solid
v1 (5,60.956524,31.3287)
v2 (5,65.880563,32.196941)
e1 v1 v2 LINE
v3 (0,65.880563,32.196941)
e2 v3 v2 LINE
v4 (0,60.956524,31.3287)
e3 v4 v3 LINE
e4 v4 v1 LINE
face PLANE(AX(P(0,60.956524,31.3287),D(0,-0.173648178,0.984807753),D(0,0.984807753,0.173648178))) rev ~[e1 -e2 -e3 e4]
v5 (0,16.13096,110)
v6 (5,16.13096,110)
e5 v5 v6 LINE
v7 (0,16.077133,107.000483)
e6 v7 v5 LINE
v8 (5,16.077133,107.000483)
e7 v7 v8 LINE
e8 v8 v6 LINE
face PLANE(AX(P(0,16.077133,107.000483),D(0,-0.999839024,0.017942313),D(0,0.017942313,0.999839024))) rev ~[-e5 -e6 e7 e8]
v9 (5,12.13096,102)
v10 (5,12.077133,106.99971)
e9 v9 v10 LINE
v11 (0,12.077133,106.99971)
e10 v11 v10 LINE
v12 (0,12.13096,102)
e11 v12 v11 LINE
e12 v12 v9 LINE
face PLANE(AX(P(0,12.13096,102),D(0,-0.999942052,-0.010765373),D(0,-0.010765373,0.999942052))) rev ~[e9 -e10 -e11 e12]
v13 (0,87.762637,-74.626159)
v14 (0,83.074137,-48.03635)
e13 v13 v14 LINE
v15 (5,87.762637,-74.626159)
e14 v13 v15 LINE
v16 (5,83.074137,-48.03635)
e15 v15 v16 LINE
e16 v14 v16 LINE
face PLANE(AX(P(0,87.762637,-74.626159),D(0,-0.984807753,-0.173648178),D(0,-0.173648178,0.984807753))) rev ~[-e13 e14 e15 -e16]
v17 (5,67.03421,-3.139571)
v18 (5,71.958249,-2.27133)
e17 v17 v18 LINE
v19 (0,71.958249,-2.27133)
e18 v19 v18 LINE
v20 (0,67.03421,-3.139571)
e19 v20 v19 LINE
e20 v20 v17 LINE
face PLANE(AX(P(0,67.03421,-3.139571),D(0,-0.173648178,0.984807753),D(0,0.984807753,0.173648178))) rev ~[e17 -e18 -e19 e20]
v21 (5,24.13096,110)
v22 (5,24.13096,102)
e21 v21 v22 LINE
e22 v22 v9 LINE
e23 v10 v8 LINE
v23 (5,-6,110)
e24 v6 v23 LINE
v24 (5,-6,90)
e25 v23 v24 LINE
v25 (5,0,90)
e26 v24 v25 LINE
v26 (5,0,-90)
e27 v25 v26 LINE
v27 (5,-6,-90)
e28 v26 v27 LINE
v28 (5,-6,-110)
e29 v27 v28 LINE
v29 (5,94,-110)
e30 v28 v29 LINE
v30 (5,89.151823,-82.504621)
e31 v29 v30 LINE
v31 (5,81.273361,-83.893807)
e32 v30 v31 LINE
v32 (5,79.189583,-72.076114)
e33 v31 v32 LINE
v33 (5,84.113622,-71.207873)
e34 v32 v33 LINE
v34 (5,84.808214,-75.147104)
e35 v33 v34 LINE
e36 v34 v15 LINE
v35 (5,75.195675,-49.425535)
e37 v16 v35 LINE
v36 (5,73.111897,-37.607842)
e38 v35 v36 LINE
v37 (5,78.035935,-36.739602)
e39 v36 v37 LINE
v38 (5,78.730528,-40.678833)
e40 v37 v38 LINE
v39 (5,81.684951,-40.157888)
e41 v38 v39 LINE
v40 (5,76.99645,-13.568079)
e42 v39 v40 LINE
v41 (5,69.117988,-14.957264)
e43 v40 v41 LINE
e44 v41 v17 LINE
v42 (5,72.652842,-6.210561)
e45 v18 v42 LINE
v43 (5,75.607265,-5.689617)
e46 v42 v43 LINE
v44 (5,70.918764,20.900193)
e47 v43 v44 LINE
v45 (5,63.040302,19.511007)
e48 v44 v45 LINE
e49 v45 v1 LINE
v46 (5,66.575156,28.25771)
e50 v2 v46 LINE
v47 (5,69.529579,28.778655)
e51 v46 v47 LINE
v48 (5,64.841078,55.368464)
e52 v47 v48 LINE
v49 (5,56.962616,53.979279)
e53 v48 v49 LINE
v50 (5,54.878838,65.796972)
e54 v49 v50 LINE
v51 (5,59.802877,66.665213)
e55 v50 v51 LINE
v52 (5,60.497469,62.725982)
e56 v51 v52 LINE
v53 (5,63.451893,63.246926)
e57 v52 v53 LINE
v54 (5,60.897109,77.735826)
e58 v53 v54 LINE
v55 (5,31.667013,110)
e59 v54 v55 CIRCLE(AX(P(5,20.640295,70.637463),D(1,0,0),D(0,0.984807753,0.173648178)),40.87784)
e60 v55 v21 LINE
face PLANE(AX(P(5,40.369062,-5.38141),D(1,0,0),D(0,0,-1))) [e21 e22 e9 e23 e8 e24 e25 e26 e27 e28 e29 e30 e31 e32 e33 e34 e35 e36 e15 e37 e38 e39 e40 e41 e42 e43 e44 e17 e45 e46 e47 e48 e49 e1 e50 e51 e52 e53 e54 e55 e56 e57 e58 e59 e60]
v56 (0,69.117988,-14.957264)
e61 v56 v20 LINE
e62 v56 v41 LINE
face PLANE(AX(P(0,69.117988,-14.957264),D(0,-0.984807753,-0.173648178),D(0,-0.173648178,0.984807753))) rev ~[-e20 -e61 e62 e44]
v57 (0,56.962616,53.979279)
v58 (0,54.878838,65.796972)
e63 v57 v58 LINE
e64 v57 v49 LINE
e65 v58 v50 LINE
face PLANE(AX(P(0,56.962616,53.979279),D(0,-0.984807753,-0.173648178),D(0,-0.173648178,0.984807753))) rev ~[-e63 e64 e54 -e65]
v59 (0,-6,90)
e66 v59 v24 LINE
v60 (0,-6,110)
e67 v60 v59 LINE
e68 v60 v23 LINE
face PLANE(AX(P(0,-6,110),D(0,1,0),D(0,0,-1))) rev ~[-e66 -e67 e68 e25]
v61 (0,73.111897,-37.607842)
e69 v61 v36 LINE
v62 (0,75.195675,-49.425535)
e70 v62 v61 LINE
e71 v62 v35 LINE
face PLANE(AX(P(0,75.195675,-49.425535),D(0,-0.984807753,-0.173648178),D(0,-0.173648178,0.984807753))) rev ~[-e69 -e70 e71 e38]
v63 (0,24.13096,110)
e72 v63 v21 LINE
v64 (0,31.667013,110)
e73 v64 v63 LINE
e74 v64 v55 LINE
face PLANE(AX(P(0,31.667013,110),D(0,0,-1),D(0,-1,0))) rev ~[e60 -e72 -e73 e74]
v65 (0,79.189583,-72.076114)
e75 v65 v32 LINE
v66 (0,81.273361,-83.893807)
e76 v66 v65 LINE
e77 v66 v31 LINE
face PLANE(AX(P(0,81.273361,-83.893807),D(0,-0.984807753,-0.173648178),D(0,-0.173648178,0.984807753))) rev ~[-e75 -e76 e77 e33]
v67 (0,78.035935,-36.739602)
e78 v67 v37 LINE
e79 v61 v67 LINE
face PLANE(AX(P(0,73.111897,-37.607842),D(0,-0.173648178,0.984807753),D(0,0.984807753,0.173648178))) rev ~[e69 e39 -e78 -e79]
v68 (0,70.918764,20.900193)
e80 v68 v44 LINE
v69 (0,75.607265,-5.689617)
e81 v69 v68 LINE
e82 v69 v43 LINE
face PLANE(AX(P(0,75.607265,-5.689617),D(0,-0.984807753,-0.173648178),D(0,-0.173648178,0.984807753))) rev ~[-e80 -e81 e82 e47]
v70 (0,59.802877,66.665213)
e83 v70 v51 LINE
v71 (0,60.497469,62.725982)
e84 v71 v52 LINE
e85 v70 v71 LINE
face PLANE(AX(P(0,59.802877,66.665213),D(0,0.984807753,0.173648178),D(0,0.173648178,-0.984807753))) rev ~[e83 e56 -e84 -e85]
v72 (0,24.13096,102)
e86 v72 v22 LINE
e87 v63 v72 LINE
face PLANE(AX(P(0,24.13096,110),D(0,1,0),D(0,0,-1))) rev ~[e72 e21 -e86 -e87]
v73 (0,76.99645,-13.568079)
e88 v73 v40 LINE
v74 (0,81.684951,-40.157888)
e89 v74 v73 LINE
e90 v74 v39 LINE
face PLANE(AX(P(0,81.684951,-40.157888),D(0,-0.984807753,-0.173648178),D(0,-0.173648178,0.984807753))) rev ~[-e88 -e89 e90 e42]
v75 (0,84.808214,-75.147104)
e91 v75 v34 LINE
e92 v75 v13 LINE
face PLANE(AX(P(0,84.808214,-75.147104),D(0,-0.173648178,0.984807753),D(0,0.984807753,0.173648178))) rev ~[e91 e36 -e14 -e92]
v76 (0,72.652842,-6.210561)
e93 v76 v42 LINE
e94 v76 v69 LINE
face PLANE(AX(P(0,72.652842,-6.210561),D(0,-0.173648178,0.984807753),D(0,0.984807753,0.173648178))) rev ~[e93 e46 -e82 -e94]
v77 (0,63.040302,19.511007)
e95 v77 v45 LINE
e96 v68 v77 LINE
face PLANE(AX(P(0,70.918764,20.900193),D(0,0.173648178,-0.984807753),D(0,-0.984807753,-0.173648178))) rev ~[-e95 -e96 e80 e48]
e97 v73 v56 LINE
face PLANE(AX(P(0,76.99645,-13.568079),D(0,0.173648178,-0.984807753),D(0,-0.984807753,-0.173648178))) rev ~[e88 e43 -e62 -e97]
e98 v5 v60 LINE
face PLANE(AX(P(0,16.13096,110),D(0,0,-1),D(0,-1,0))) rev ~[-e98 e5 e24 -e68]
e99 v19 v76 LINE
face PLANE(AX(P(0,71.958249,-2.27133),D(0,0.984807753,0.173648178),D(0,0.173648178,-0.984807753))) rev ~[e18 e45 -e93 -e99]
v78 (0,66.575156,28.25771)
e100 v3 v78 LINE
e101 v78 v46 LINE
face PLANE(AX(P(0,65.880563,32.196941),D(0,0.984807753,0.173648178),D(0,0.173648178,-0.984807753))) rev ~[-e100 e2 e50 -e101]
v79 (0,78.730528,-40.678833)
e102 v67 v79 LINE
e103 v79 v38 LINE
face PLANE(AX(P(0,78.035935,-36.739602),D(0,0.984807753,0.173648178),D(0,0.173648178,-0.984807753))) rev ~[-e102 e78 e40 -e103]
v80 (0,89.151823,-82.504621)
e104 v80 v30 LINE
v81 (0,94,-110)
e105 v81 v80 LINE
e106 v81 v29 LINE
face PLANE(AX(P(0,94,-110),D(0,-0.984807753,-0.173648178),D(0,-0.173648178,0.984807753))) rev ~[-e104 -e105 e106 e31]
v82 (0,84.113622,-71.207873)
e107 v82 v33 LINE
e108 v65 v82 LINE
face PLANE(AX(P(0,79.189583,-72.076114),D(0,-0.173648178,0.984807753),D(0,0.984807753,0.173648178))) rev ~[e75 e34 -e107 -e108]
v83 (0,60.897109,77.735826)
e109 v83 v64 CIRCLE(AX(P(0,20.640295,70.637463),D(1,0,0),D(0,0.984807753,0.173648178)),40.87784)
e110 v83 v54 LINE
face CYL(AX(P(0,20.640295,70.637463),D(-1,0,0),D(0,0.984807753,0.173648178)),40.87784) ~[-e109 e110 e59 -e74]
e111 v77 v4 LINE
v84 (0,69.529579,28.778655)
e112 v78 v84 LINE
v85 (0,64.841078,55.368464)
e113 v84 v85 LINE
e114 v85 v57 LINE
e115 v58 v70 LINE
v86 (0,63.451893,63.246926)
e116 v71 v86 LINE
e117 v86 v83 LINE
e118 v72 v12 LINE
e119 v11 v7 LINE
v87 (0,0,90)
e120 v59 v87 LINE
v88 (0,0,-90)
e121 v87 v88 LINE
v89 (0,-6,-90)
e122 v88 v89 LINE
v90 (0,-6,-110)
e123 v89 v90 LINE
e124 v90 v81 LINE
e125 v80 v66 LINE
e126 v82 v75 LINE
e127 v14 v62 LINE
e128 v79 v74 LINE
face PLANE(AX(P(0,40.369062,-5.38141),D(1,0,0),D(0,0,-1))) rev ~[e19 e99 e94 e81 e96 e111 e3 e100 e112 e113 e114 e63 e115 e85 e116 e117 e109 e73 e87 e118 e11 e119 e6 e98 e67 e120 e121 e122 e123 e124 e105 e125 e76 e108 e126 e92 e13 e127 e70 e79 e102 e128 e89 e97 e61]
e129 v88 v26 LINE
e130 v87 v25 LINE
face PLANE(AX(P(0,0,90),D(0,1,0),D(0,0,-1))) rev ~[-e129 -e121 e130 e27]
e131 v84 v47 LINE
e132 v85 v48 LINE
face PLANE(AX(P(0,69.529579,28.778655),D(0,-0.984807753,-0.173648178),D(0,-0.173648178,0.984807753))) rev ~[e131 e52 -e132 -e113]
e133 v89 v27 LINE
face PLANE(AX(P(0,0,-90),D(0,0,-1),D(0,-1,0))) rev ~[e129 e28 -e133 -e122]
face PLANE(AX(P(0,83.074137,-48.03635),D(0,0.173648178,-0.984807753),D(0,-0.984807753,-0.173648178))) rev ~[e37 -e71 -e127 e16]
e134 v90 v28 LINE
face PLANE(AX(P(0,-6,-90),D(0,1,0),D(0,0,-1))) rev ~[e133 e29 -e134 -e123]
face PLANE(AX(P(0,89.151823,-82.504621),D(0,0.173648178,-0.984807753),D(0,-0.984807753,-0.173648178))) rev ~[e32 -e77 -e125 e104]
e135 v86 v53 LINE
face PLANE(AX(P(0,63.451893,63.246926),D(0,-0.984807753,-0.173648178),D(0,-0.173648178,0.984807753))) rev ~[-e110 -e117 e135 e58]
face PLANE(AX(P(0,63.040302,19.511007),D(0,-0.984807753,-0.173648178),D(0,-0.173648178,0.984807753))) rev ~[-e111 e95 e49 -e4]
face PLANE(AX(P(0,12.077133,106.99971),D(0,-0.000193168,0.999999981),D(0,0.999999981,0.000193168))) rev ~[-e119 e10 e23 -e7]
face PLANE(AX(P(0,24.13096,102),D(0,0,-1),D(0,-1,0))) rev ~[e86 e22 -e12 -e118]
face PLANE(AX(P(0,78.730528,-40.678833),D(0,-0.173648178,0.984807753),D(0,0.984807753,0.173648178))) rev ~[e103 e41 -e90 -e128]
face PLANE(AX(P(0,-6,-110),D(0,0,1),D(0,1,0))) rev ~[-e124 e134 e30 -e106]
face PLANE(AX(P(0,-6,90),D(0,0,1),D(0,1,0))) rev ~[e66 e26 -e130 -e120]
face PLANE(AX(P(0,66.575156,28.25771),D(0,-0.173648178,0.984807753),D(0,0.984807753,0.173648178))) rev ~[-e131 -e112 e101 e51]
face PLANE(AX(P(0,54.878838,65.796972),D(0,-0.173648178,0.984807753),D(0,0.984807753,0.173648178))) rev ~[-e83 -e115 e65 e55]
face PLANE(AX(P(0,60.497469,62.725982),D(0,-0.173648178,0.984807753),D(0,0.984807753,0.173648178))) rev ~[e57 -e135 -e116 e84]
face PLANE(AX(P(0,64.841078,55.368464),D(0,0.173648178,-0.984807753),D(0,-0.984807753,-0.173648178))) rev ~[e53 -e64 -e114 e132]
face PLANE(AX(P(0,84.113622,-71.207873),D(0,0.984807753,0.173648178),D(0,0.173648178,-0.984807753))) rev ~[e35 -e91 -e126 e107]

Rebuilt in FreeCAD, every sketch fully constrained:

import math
import FreeCAD as App
import Part
import Sketcher

V = App.Vector
Q = App.Units.Quantity

doc = App.newDocument("Part")
body = doc.addObject("PartDesign::Body", "Body")

# Sketch on YZ plane
sketch1 = body.newObject("Sketcher::SketchObject", "Sketch")
sketch1.AttachmentSupport = (doc.getObject("YZ_Plane"), [""])
sketch1.MapMode = "FlatFace"
sketch1.addGeometry(Part.LineSegment(V(-6, 110, 0), V(-6, 90, 0)), False)
sketch1.addGeometry(Part.LineSegment(V(-6, 90, 0), V(0, 90, 0)), False)
sketch1.addGeometry(Part.LineSegment(V(0, 90, 0), V(0, -90, 0)), False)
sketch1.addGeometry(Part.LineSegment(V(0, -90, 0), V(-6, -90, 0)), False)
sketch1.addGeometry(Part.LineSegment(V(-6, -90, 0), V(-6, -110, 0)), False)
sketch1.addGeometry(Part.LineSegment(V(-6, -110, 0), V(94, -110, 0)), False)
sketch1.addGeometry(Part.LineSegment(V(94, -110, 0), V(89.151823, -82.504621, 0)), False)
sketch1.addGeometry(Part.LineSegment(V(89.151823, -82.504621, 0), V(81.273361, -83.893807, 0)), False)
sketch1.addGeometry(Part.LineSegment(V(81.273361, -83.893807, 0), V(79.189583, -72.076114, 0)), False)
sketch1.addGeometry(Part.LineSegment(V(79.189583, -72.076114, 0), V(84.113622, -71.207873, 0)), False)
sketch1.addGeometry(Part.LineSegment(V(84.113622, -71.207873, 0), V(84.808214, -75.147104, 0)), False)
sketch1.addGeometry(Part.LineSegment(V(84.808214, -75.147104, 0), V(87.762637, -74.626159, 0)), False)
sketch1.addGeometry(Part.LineSegment(V(87.762637, -74.626159, 0), V(83.074137, -48.03635, 0)), False)
sketch1.addGeometry(Part.LineSegment(V(83.074137, -48.03635, 0), V(75.195675, -49.425535, 0)), False)
sketch1.addGeometry(Part.LineSegment(V(75.195675, -49.425535, 0), V(73.111897, -37.607842, 0)), False)
sketch1.addGeometry(Part.LineSegment(V(73.111897, -37.607842, 0), V(78.035935, -36.739602, 0)), False)
sketch1.addGeometry(Part.LineSegment(V(78.035935, -36.739602, 0), V(78.730528, -40.678833, 0)), False)
sketch1.addGeometry(Part.LineSegment(V(78.730528, -40.678833, 0), V(81.684951, -40.157888, 0)), False)
sketch1.addGeometry(Part.LineSegment(V(81.684951, -40.157888, 0), V(76.99645, -13.568079, 0)), False)
sketch1.addGeometry(Part.LineSegment(V(76.99645, -13.568079, 0), V(69.117988, -14.957264, 0)), False)
sketch1.addGeometry(Part.LineSegment(V(69.117988, -14.957264, 0), V(67.03421, -3.139571, 0)), False)
sketch1.addGeometry(Part.LineSegment(V(67.03421, -3.139571, 0), V(71.958249, -2.27133, 0)), False)
sketch1.addGeometry(Part.LineSegment(V(71.958249, -2.27133, 0), V(72.652842, -6.210561, 0)), False)
sketch1.addGeometry(Part.LineSegment(V(72.652842, -6.210561, 0), V(75.607265, -5.689617, 0)), False)
sketch1.addGeometry(Part.LineSegment(V(75.607265, -5.689617, 0), V(70.918764, 20.900193, 0)), False)
sketch1.addGeometry(Part.LineSegment(V(70.918764, 20.900193, 0), V(63.040302, 19.511007, 0)), False)
sketch1.addGeometry(Part.LineSegment(V(63.040302, 19.511007, 0), V(60.956524, 31.3287, 0)), False)
sketch1.addGeometry(Part.LineSegment(V(60.956524, 31.3287, 0), V(65.880563, 32.196941, 0)), False)
sketch1.addGeometry(Part.LineSegment(V(65.880563, 32.196941, 0), V(66.575156, 28.25771, 0)), False)
sketch1.addGeometry(Part.LineSegment(V(66.575156, 28.25771, 0), V(69.529579, 28.778655, 0)), False)
sketch1.addGeometry(Part.LineSegment(V(69.529579, 28.778655, 0), V(64.841078, 55.368464, 0)), False)
sketch1.addGeometry(Part.LineSegment(V(64.841078, 55.368464, 0), V(56.962616, 53.979279, 0)), False)
sketch1.addGeometry(Part.LineSegment(V(56.962616, 53.979279, 0), V(54.878838, 65.796972, 0)), False)
sketch1.addGeometry(Part.LineSegment(V(54.878838, 65.796972, 0), V(59.802877, 66.665213, 0)), False)
sketch1.addGeometry(Part.LineSegment(V(59.802877, 66.665213, 0), V(60.497469, 62.725982, 0)), False)
sketch1.addGeometry(Part.LineSegment(V(60.497469, 62.725982, 0), V(63.451893, 63.246926, 0)), False)
sketch1.addGeometry(Part.LineSegment(V(63.451893, 63.246926, 0), V(60.897109, 77.735826, 0)), False)
sketch1.addGeometry(Part.ArcOfCircle(Part.Circle(V(20.640295, 70.637463, 0), V(0, 0, 1), 40.87784), math.radians(10), math.radians(74.350724)), False)
sketch1.addGeometry(Part.LineSegment(V(31.667013, 110, 0), V(24.13096, 110, 0)), False)
sketch1.addGeometry(Part.LineSegment(V(24.13096, 110, 0), V(24.13096, 102, 0)), False)
sketch1.addGeometry(Part.LineSegment(V(24.13096, 102, 0), V(12.13096, 102, 0)), False)
sketch1.addGeometry(Part.LineSegment(V(12.13096, 102, 0), V(12.077133, 106.99971, 0)), False)
sketch1.addGeometry(Part.LineSegment(V(12.077133, 106.99971, 0), V(16.077133, 107.000483, 0)), False)
sketch1.addGeometry(Part.LineSegment(V(16.077133, 107.000483, 0), V(16.13096, 110, 0)), False)
sketch1.addGeometry(Part.LineSegment(V(16.13096, 110, 0), V(-6, 110, 0)), False)
sketch1.addConstraint(Sketcher.Constraint("Coincident", 0, 2, 1, 1))
sketch1.addConstraint(Sketcher.Constraint("Coincident", 1, 2, 2, 1))
sketch1.addConstraint(Sketcher.Constraint("Coincident", 2, 2, 3, 1))
sketch1.addConstraint(Sketcher.Constraint("Coincident", 3, 2, 4, 1))
sketch1.addConstraint(Sketcher.Constraint("Coincident", 4, 2, 5, 1))
sketch1.addConstraint(Sketcher.Constraint("Coincident", 5, 2, 6, 1))
sketch1.addConstraint(Sketcher.Constraint("Coincident", 6, 2, 7, 1))
sketch1.addConstraint(Sketcher.Constraint("Coincident", 7, 2, 8, 1))
sketch1.addConstraint(Sketcher.Constraint("Coincident", 8, 2, 9, 1))
sketch1.addConstraint(Sketcher.Constraint("Coincident", 9, 2, 10, 1))
sketch1.addConstraint(Sketcher.Constraint("Coincident", 10, 2, 11, 1))
sketch1.addConstraint(Sketcher.Constraint("Coincident", 11, 2, 12, 1))
sketch1.addConstraint(Sketcher.Constraint("Coincident", 12, 2, 13, 1))
sketch1.addConstraint(Sketcher.Constraint("Coincident", 13, 2, 14, 1))
sketch1.addConstraint(Sketcher.Constraint("Coincident", 14, 2, 15, 1))
sketch1.addConstraint(Sketcher.Constraint("Coincident", 15, 2, 16, 1))
sketch1.addConstraint(Sketcher.Constraint("Coincident", 16, 2, 17, 1))
sketch1.addConstraint(Sketcher.Constraint("Coincident", 17, 2, 18, 1))
sketch1.addConstraint(Sketcher.Constraint("Coincident", 18, 2, 19, 1))
sketch1.addConstraint(Sketcher.Constraint("Coincident", 19, 2, 20, 1))
sketch1.addConstraint(Sketcher.Constraint("Coincident", 20, 2, 21, 1))
sketch1.addConstraint(Sketcher.Constraint("Coincident", 21, 2, 22, 1))
sketch1.addConstraint(Sketcher.Constraint("Coincident", 22, 2, 23, 1))
sketch1.addConstraint(Sketcher.Constraint("Coincident", 23, 2, 24, 1))
sketch1.addConstraint(Sketcher.Constraint("Coincident", 24, 2, 25, 1))
sketch1.addConstraint(Sketcher.Constraint("Coincident", 25, 2, 26, 1))
sketch1.addConstraint(Sketcher.Constraint("Coincident", 26, 2, 27, 1))
sketch1.addConstraint(Sketcher.Constraint("Coincident", 27, 2, 28, 1))
sketch1.addConstraint(Sketcher.Constraint("Coincident", 28, 2, 29, 1))
sketch1.addConstraint(Sketcher.Constraint("Coincident", 29, 2, 30, 1))
sketch1.addConstraint(Sketcher.Constraint("Coincident", 30, 2, 31, 1))
sketch1.addConstraint(Sketcher.Constraint("Coincident", 31, 2, 32, 1))
sketch1.addConstraint(Sketcher.Constraint("Coincident", 32, 2, 33, 1))
sketch1.addConstraint(Sketcher.Constraint("Coincident", 33, 2, 34, 1))
sketch1.addConstraint(Sketcher.Constraint("Coincident", 34, 2, 35, 1))
sketch1.addConstraint(Sketcher.Constraint("Coincident", 35, 2, 36, 1))
sketch1.addConstraint(Sketcher.Constraint("Tangent", 36, 2, 37, 1))
sketch1.addConstraint(Sketcher.Constraint("Coincident", 37, 2, 38, 1))
sketch1.addConstraint(Sketcher.Constraint("Coincident", 38, 2, 39, 1))
sketch1.addConstraint(Sketcher.Constraint("Coincident", 39, 2, 40, 1))
sketch1.addConstraint(Sketcher.Constraint("Coincident", 40, 2, 41, 1))
sketch1.addConstraint(Sketcher.Constraint("Coincident", 41, 2, 42, 1))
sketch1.addConstraint(Sketcher.Constraint("Coincident", 42, 2, 43, 1))
sketch1.addConstraint(Sketcher.Constraint("Coincident", 43, 2, 44, 1))
sketch1.addConstraint(Sketcher.Constraint("Coincident", 44, 2, 0, 1))
sketch1.addConstraint(Sketcher.Constraint("Vertical", 0))
sketch1.addConstraint(Sketcher.Constraint("Horizontal", 1))
sketch1.addConstraint(Sketcher.Constraint("Vertical", 2))
sketch1.addConstraint(Sketcher.Constraint("Horizontal", 3))
sketch1.addConstraint(Sketcher.Constraint("Vertical", 4))
sketch1.addConstraint(Sketcher.Constraint("Horizontal", 5))
sketch1.addConstraint(Sketcher.Constraint("Horizontal", 38))
sketch1.addConstraint(Sketcher.Constraint("Vertical", 39))
sketch1.addConstraint(Sketcher.Constraint("Horizontal", 40))
sketch1.addConstraint(Sketcher.Constraint("Horizontal", 44))
sketch1.addConstraint(Sketcher.Constraint("Symmetric", 1, 2, 2, 2, -1, 1))
sketch1.addConstraint(Sketcher.Constraint("Symmetric", 4, 2, 44, 2, -1))
sketch1.addConstraint(Sketcher.Constraint("Perpendicular", 6, 7))
sketch1.addConstraint(Sketcher.Constraint("Perpendicular", 7, 8))
sketch1.addConstraint(Sketcher.Constraint("Perpendicular", 8, 9))
sketch1.addConstraint(Sketcher.Constraint("Perpendicular", 9, 10))
sketch1.addConstraint(Sketcher.Constraint("Perpendicular", 10, 11))
sketch1.addConstraint(Sketcher.Constraint("Perpendicular", 11, 12))
sketch1.addConstraint(Sketcher.Constraint("Perpendicular", 12, 13))
sketch1.addConstraint(Sketcher.Constraint("Perpendicular", 13, 14))
sketch1.addConstraint(Sketcher.Constraint("Perpendicular", 14, 15))
sketch1.addConstraint(Sketcher.Constraint("Perpendicular", 15, 16))
sketch1.addConstraint(Sketcher.Constraint("Perpendicular", 16, 17))
sketch1.addConstraint(Sketcher.Constraint("Perpendicular", 17, 18))
sketch1.addConstraint(Sketcher.Constraint("Perpendicular", 18, 19))
sketch1.addConstraint(Sketcher.Constraint("Perpendicular", 19, 20))
sketch1.addConstraint(Sketcher.Constraint("Perpendicular", 20, 21))
sketch1.addConstraint(Sketcher.Constraint("Perpendicular", 21, 22))
sketch1.addConstraint(Sketcher.Constraint("Perpendicular", 22, 23))
sketch1.addConstraint(Sketcher.Constraint("Perpendicular", 23, 24))
sketch1.addConstraint(Sketcher.Constraint("Perpendicular", 24, 25))
sketch1.addConstraint(Sketcher.Constraint("Perpendicular", 25, 26))
sketch1.addConstraint(Sketcher.Constraint("Perpendicular", 26, 27))
sketch1.addConstraint(Sketcher.Constraint("Perpendicular", 27, 28))
sketch1.addConstraint(Sketcher.Constraint("Perpendicular", 28, 29))
sketch1.addConstraint(Sketcher.Constraint("Perpendicular", 29, 30))
sketch1.addConstraint(Sketcher.Constraint("Perpendicular", 30, 31))
sketch1.addConstraint(Sketcher.Constraint("Perpendicular", 31, 32))
sketch1.addConstraint(Sketcher.Constraint("Perpendicular", 32, 33))
sketch1.addConstraint(Sketcher.Constraint("Perpendicular", 33, 34))
sketch1.addConstraint(Sketcher.Constraint("Perpendicular", 34, 35))
sketch1.addConstraint(Sketcher.Constraint("Perpendicular", 35, 36))
sketch1.addConstraint(Sketcher.Constraint("Horizontal", 38, 2, 43, 2))
sketch1.addConstraint(Sketcher.Constraint("Equal", 7, 13))
sketch1.addConstraint(Sketcher.Constraint("Equal", 8, 14))
sketch1.addConstraint(Sketcher.Constraint("Equal", 9, 15))
sketch1.addConstraint(Sketcher.Constraint("Equal", 10, 16))
sketch1.addConstraint(Sketcher.Constraint("Equal", 11, 17))
sketch1.addConstraint(Sketcher.Constraint("Equal", 12, 18))
sketch1.addConstraint(Sketcher.Constraint("Equal", 13, 19))
sketch1.addConstraint(Sketcher.Constraint("Equal", 14, 20))
sketch1.addConstraint(Sketcher.Constraint("Equal", 15, 21))
sketch1.addConstraint(Sketcher.Constraint("Equal", 16, 22))
sketch1.addConstraint(Sketcher.Constraint("Equal", 17, 23))
sketch1.addConstraint(Sketcher.Constraint("Equal", 18, 24))
sketch1.addConstraint(Sketcher.Constraint("Equal", 19, 25))
sketch1.addConstraint(Sketcher.Constraint("Equal", 20, 26))
sketch1.addConstraint(Sketcher.Constraint("Equal", 21, 27))
sketch1.addConstraint(Sketcher.Constraint("Equal", 22, 28))
sketch1.addConstraint(Sketcher.Constraint("Equal", 23, 29))
sketch1.addConstraint(Sketcher.Constraint("Equal", 24, 30))
sketch1.addConstraint(Sketcher.Constraint("Equal", 25, 31))
sketch1.addConstraint(Sketcher.Constraint("Equal", 26, 32))
sketch1.addConstraint(Sketcher.Constraint("Equal", 27, 33))
sketch1.addConstraint(Sketcher.Constraint("Equal", 28, 34))
sketch1.addConstraint(Sketcher.Constraint("Equal", 29, 35))
sketch1.addConstraint(Sketcher.Constraint("Equal", 33, 41))
sketch1.addConstraint(Sketcher.Constraint("Equal", 34, 42))
sketch1.addConstraint(Sketcher.Constraint("Equal", 35, 43))
sketch1.addConstraint(Sketcher.Constraint("DistanceX", 1, 1, 1, 2, 6.0))
sketch1.addConstraint(Sketcher.Constraint("DistanceX", 5, 1, 5, 2, 100.0))
sketch1.addConstraint(Sketcher.Constraint("DistanceX", 40, 2, 40, 1, 12.0))
sketch1.addConstraint(Sketcher.Constraint("DistanceY", 0, 2, 0, 1, 20.0))
sketch1.addConstraint(Sketcher.Constraint("DistanceY", 2, 2, 2, 1, 180.0))
sketch1.addConstraint(Sketcher.Constraint("DistanceY", 39, 2, 39, 1, 8.0))
sketch1.addConstraint(Sketcher.Constraint("Angle", 6, Q("100 deg")))
sketch1.addConstraint(Sketcher.Constraint("Distance", 7, 8.0))
sketch1.addConstraint(Sketcher.Constraint("Distance", 8, 12.0))
sketch1.addConstraint(Sketcher.Constraint("Distance", 9, 5.0))
sketch1.addConstraint(Sketcher.Constraint("Distance", 10, 4.0))
sketch1.addConstraint(Sketcher.Constraint("Distance", 11, 3.0))
sketch1.addConstraint(Sketcher.Constraint("Distance", 12, 27.0))
sketch1.addConstraint(Sketcher.Constraint("DistanceX", 43, 2, 38, 2, 8.0))
sketch1.addConstraint(Sketcher.Constraint("Radius", 37, 40.87784))
sketch1.addConstraint(Sketcher.Constraint("DistanceX", 44, 2, 44, 1, 22.13096))
sketch1.addConstraint(Sketcher.Constraint("DistanceY", 15, 2, -1, 1, 36.739602))
sketch1.addConstraint(Sketcher.Constraint("DistanceY", 35, 2, 36, 2, 14.4889))
sketch1.addConstraint(Sketcher.Constraint("DistanceY", -1, 1, 41, 2, 106.99971))
pad1 = body.newObject("PartDesign::Pad", "Pad")
pad1.Profile = sketch1
pad1.Length = 5

doc.recompute()
